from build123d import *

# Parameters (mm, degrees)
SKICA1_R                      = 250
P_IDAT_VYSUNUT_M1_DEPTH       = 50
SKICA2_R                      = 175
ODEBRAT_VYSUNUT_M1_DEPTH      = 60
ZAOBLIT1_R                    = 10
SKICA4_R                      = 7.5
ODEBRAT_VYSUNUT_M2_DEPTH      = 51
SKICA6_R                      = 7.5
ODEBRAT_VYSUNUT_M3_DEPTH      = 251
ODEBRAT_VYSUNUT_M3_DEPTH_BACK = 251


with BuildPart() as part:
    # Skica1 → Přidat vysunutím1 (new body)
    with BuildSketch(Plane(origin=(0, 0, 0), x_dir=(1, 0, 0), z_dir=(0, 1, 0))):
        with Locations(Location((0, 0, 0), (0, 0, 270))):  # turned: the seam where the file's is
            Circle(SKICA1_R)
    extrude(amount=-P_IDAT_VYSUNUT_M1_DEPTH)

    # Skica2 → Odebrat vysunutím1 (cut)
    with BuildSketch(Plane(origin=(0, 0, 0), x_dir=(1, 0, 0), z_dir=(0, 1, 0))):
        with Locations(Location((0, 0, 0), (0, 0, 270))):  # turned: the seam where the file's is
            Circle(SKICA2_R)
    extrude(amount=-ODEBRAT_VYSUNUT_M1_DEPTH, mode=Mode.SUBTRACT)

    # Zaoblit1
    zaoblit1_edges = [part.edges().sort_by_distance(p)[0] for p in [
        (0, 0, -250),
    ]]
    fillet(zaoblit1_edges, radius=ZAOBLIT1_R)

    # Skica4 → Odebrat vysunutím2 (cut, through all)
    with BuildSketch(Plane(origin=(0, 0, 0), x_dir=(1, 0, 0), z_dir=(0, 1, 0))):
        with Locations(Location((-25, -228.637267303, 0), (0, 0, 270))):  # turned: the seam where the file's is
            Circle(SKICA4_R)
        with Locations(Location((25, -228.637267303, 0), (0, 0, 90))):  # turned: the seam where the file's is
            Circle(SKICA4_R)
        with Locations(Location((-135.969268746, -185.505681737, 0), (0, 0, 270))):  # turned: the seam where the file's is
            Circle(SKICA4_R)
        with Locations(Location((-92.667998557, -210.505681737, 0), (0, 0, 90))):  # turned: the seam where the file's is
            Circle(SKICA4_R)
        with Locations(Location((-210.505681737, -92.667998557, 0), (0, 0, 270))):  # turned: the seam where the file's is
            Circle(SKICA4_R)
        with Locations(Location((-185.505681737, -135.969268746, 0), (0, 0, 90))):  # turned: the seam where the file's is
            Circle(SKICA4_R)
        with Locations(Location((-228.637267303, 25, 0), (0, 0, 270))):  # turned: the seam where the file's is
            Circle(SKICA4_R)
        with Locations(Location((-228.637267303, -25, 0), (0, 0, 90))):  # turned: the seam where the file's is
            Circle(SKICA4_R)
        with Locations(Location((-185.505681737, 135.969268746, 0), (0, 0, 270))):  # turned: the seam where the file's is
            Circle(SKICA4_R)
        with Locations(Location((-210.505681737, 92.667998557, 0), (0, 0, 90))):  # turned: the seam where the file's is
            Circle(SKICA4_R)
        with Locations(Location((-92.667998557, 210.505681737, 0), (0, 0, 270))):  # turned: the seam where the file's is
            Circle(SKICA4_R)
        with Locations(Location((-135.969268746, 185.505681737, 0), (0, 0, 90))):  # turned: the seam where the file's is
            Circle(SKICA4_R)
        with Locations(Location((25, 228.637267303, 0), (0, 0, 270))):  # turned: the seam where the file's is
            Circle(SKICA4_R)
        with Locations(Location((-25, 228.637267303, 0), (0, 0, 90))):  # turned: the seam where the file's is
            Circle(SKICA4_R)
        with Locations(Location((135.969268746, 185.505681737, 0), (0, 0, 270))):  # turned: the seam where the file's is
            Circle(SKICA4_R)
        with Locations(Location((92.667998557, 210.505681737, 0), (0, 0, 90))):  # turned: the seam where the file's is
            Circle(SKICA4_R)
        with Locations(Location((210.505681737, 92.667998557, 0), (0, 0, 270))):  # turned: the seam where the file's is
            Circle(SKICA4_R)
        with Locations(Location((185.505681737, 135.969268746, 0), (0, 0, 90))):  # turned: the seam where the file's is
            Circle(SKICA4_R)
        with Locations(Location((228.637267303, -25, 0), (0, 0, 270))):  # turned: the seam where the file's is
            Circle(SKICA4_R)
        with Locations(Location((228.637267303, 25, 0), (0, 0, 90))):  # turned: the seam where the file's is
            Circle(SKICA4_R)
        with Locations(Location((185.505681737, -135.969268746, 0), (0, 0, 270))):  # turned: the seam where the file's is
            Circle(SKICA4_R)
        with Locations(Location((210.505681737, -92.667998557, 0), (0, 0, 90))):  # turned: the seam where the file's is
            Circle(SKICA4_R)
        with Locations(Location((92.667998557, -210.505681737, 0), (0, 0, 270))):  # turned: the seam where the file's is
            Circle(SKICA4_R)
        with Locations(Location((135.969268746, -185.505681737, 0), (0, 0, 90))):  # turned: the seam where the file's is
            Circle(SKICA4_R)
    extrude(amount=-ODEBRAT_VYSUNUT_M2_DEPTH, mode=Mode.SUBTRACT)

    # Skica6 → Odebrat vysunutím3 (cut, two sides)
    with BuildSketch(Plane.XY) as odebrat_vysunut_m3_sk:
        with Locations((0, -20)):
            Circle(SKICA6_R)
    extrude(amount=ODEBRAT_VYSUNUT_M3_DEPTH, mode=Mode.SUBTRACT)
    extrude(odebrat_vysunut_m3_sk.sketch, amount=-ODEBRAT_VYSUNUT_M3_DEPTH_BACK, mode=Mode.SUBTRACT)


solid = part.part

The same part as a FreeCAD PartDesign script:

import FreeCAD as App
import Part
import Sketcher
from FreeCAD import Vector
Q = App.Units.Quantity


def edges_at(feature, points):
    """Names of the edges that pass closest to the given points."""
    edges = feature.Shape.Edges
    near = lambda p: min(range(len(edges)), key=lambda i: edges[i].distToShape(Part.Vertex(*p))[0])
    return sorted({f"Edge{near(p) + 1}" for p in points})

doc = App.newDocument("Part")
body = doc.addObject("PartDesign::Body", "Body")

sketch1 = doc.addObject("Sketcher::SketchObject", "Sketch")
body.addObject(sketch1)
sketch1.AttachmentSupport = (doc.XZ_Plane, [""])
sketch1.MapMode = "FlatFace"
sketch1.addGeometry(Part.Circle(Vector(0, 0, 0), Vector(0, 0, 1), 250), False)
sketch1.addConstraint(Sketcher.Constraint("Coincident", 0, 3, -1, 1))
sketch1.addConstraint(Sketcher.Constraint("Diameter", 0, Q("500 mm")))
pad1 = doc.addObject("PartDesign::Pad", "Pad")
body.addObject(pad1)
pad1.Profile = sketch1
pad1.Length = 50

sketch2 = doc.addObject("Sketcher::SketchObject", "Sketch001")
body.addObject(sketch2)
sketch2.AttachmentSupport = (doc.XZ_Plane, [""])
sketch2.MapMode = "FlatFace"
sketch2.addGeometry(Part.Circle(Vector(0, 0, 0), Vector(0, 0, 1), 175), False)
sketch2.addConstraint(Sketcher.Constraint("Coincident", 0, 3, -1, 1))
sketch2.addConstraint(Sketcher.Constraint("Diameter", 0, Q("350 mm")))
pocket1 = doc.addObject("PartDesign::Pocket", "Pocket")
body.addObject(pocket1)
pocket1.Profile = sketch2
pocket1.Length = 60
pocket1.Reversed = True
doc.recompute()

fillet = doc.addObject("PartDesign::Fillet", "Fillet")
body.addObject(fillet)
fillet.Base = (pocket1, edges_at(pocket1, [(0, 0, -250)]))
fillet.Radius = 10

sketch3 = doc.addObject("Sketcher::SketchObject", "Sketch002")
body.addObject(sketch3)
sketch3.AttachmentSupport = (doc.XZ_Plane, [""])
sketch3.MapMode = "FlatFace"
sketch3.addGeometry(Part.Circle(Vector(-25, 229, 0), Vector(0, 0, 1), 8), False)
sketch3.addGeometry(Part.Circle(Vector(25, 229, 0), Vector(0, 0, 1), 8), False)
sketch3.addGeometry(Part.Circle(Vector(-136, 186, 0), Vector(0, 0, 1), 8), False)
sketch3.addGeometry(Part.Circle(Vector(-93, 211, 0), Vector(0, 0, 1), 8), False)
sketch3.addGeometry(Part.Circle(Vector(-211, 93, 0), Vector(0, 0, 1), 8), False)
sketch3.addGeometry(Part.Circle(Vector(-186, 136, 0), Vector(0, 0, 1), 8), False)
sketch3.addGeometry(Part.Circle(Vector(-229, -25, 0), Vector(0, 0, 1), 8), False)
sketch3.addGeometry(Part.Circle(Vector(-229, 25, 0), Vector(0, 0, 1), 8), False)
sketch3.addGeometry(Part.Circle(Vector(-186, -136, 0), Vector(0, 0, 1), 8), False)
sketch3.addGeometry(Part.Circle(Vector(-211, -93, 0), Vector(0, 0, 1), 8), False)
sketch3.addGeometry(Part.Circle(Vector(-93, -211, 0), Vector(0, 0, 1), 8), False)
sketch3.addGeometry(Part.Circle(Vector(-136, -186, 0), Vector(0, 0, 1), 8), False)
sketch3.addGeometry(Part.Circle(Vector(25, -229, 0), Vector(0, 0, 1), 8), False)
sketch3.addGeometry(Part.Circle(Vector(-25, -229, 0), Vector(0, 0, 1), 8), False)
sketch3.addGeometry(Part.Circle(Vector(136, -186, 0), Vector(0, 0, 1), 8), False)
sketch3.addGeometry(Part.Circle(Vector(93, -211, 0), Vector(0, 0, 1), 8), False)
sketch3.addGeometry(Part.Circle(Vector(211, -93, 0), Vector(0, 0, 1), 8), False)
sketch3.addGeometry(Part.Circle(Vector(186, -136, 0), Vector(0, 0, 1), 8), False)
sketch3.addGeometry(Part.Circle(Vector(229, 25, 0), Vector(0, 0, 1), 8), False)
sketch3.addGeometry(Part.Circle(Vector(229, -25, 0), Vector(0, 0, 1), 8), False)
sketch3.addGeometry(Part.Circle(Vector(186, 136, 0), Vector(0, 0, 1), 8), False)
sketch3.addGeometry(Part.Circle(Vector(211, 93, 0), Vector(0, 0, 1), 8), False)
sketch3.addGeometry(Part.Circle(Vector(93, 211, 0), Vector(0, 0, 1), 8), False)
sketch3.addGeometry(Part.Circle(Vector(136, 186, 0), Vector(0, 0, 1), 8), False)
sketch3.addConstraint(Sketcher.Constraint("Equal", 0, 1))
sketch3.addConstraint(Sketcher.Constraint("Equal", 1, 2))
sketch3.addConstraint(Sketcher.Constraint("Equal", 2, 3))
sketch3.addConstraint(Sketcher.Constraint("Equal", 3, 4))
sketch3.addConstraint(Sketcher.Constraint("Equal", 4, 5))
sketch3.addConstraint(Sketcher.Constraint("Equal", 5, 6))
sketch3.addConstraint(Sketcher.Constraint("Equal", 6, 7))
sketch3.addConstraint(Sketcher.Constraint("Equal", 7, 8))
sketch3.addConstraint(Sketcher.Constraint("Equal", 8, 9))
sketch3.addConstraint(Sketcher.Constraint("Equal", 9, 10))
sketch3.addConstraint(Sketcher.Constraint("Equal", 10, 11))
sketch3.addConstraint(Sketcher.Constraint("Equal", 11, 12))
sketch3.addConstraint(Sketcher.Constraint("Equal", 12, 13))
sketch3.addConstraint(Sketcher.Constraint("Equal", 13, 14))
sketch3.addConstraint(Sketcher.Constraint("Equal", 14, 15))
sketch3.addConstraint(Sketcher.Constraint("Equal", 15, 16))
sketch3.addConstraint(Sketcher.Constraint("Equal", 16, 17))
sketch3.addConstraint(Sketcher.Constraint("Equal", 17, 18))
sketch3.addConstraint(Sketcher.Constraint("Equal", 18, 19))
sketch3.addConstraint(Sketcher.Constraint("Equal", 19, 20))
sketch3.addConstraint(Sketcher.Constraint("Equal", 20, 21))
sketch3.addConstraint(Sketcher.Constraint("Equal", 21, 22))
sketch3.addConstraint(Sketcher.Constraint("Equal", 22, 23))
sketch3.addConstraint(Sketcher.Constraint("Symmetric", 0, 3, 12, 3, -1, 1))
sketch3.addConstraint(Sketcher.Constraint("Symmetric", 1, 3, 13, 3, -1, 1))
sketch3.addConstraint(Sketcher.Constraint("Symmetric", 2, 3, 14, 3, -1, 1))
sketch3.addConstraint(Sketcher.Constraint("Symmetric", 3, 3, 15, 3, -1, 1))
sketch3.addConstraint(Sketcher.Constraint("Symmetric", 4, 3, 16, 3, -1, 1))
sketch3.addConstraint(Sketcher.Constraint("Symmetric", 5, 3, 17, 3, -1, 1))
sketch3.addConstraint(Sketcher.Constraint("Symmetric", 6, 3, 18, 3, -1, 1))
sketch3.addConstraint(Sketcher.Constraint("Symmetric", 7, 3, 19, 3, -1, 1))
sketch3.addConstraint(Sketcher.Constraint("Symmetric", 8, 3, 20, 3, -1, 1))
sketch3.addConstraint(Sketcher.Constraint("Symmetric", 9, 3, 21, 3, -1, 1))
sketch3.addConstraint(Sketcher.Constraint("Symmetric", 10, 3, 22, 3, -1, 1))
sketch3.addConstraint(Sketcher.Constraint("Symmetric", 11, 3, 23, 3, -1, 1))
sketch3.addConstraint(Sketcher.Constraint("Symmetric", 0, 3, 1, 3, -2))
sketch3.addConstraint(Sketcher.Constraint("Symmetric", 11, 3, 14, 3, -2))
sketch3.addConstraint(Sketcher.Constraint("Symmetric", 10, 3, 15, 3, -2))
sketch3.addConstraint(Sketcher.Constraint("Symmetric", 9, 3, 16, 3, -2))
sketch3.addConstraint(Sketcher.Constraint("Symmetric", 8, 3, 17, 3, -2))
sketch3.addConstraint(Sketcher.Constraint("Symmetric", 7, 3, 18, 3, -2))
sketch3.addConstraint(Sketcher.Constraint("Diameter", 0, Q("15 mm")))
sketch3.addConstraint(Sketcher.Constraint("DistanceX", 0, 3, -1, 1, Q("25 mm")))
sketch3.addConstraint(Sketcher.Constraint("DistanceY", 6, 3, -1, 1, Q("25 mm")))
sketch3.addConstraint(Sketcher.Constraint("DistanceY", 2, 3, 3, 3, Q("25 mm")))
sketch3.addConstraint(Sketcher.Constraint("DistanceX", 4, 3, 5, 3, Q("25 mm")))
sketch3.addConstraint(Sketcher.Constraint("DistanceX", 3, 3, -1, 1, Q("92.667999 mm")))
sketch3.addConstraint(Sketcher.Constraint("DistanceY", -1, 1, 4, 3, Q("92.667999 mm")))
sketch3.addConstraint(Sketcher.Constraint("DistanceY", 5, 3, 0, 3, Q("92.667999 mm")))
sketch3.addConstraint(Sketcher.Constraint("DistanceX", 6, 3, 2, 3, Q("92.667999 mm")))
sketch3.addConstraint(Sketcher.Constraint("DistanceX", 2, 3, -1, 1, Q("135.969269 mm")))
sketch3.addConstraint(Sketcher.Constraint("DistanceY", -1, 1, 2, 3, Q("185.505682 mm")))
sketch3.addConstraint(Sketcher.Constraint("DistanceX", 4, 3, -1, 1, Q("210.505682 mm")))
sketch3.addConstraint(Sketcher.Constraint("DistanceY", -1, 1, 5, 3, Q("135.969269 mm")))
pocket2 = doc.addObject("PartDesign::Pocket", "Pocket001")
body.addObject(pocket2)
pocket2.Profile = sketch3
pocket2.Type = "ThroughAll"
pocket2.Reversed = True

sketch4 = doc.addObject("Sketcher::SketchObject", "Sketch003")
body.addObject(sketch4)
sketch4.AttachmentSupport = (doc.XY_Plane, [""])
sketch4.MapMode = "FlatFace"
sketch4.addGeometry(Part.Circle(Vector(0, -20, 0), Vector(0, 0, 1), 8), False)
sketch4.addConstraint(Sketcher.Constraint("PointOnObject", 0, 3, -2))
sketch4.addConstraint(Sketcher.Constraint("Diameter", 0, Q("15 mm")))
sketch4.addConstraint(Sketcher.Constraint("DistanceY", 0, 3, -1, 1, Q("20 mm")))
pocket3 = doc.addObject("PartDesign::Pocket", "Pocket002")
body.addObject(pocket3)
pocket3.Profile = sketch4
pocket3.Type = "ThroughAll"
pocket3.Midplane = True

doc.recompute()
